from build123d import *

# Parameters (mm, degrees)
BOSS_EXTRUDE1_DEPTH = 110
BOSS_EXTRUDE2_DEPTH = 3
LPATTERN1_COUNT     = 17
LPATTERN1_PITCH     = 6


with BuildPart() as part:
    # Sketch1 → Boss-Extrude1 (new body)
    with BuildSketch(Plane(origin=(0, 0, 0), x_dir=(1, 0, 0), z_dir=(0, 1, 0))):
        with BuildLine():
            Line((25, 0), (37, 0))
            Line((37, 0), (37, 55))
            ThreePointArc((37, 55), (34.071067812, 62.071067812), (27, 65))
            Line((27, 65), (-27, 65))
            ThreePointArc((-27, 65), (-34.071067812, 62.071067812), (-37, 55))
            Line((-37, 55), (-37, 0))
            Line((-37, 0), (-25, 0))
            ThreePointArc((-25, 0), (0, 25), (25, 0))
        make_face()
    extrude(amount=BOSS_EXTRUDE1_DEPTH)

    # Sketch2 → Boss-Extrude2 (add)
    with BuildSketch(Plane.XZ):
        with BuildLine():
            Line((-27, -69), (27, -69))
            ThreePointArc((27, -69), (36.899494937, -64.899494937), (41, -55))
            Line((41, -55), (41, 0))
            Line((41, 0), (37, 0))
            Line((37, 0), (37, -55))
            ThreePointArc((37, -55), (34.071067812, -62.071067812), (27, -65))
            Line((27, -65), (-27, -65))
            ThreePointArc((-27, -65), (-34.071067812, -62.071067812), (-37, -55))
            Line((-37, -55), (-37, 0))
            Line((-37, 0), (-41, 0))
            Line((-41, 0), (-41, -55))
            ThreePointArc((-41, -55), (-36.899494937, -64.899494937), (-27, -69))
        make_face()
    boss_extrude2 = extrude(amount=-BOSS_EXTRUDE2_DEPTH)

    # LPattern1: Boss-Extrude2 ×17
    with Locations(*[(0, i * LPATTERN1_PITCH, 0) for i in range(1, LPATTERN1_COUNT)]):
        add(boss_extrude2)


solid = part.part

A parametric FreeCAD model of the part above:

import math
import FreeCAD as App
import Part
import Sketcher
from FreeCAD import Vector
Q = App.Units.Quantity

doc = App.newDocument("Part")
body = doc.addObject("PartDesign::Body", "Body")

# Sketch on XZ plane
sketch1 = body.newObject("Sketcher::SketchObject", "Sketch")
sketch1.AttachmentSupport = (doc.getObject("XZ_Plane"), [""])
sketch1.MapMode = "FlatFace"
sketch1.addGeometry([
    Part.LineSegment(Vector(25, 0, 0), Vector(37, 0, 0)),  # 0
    Part.LineSegment(Vector(37, 0, 0), Vector(37, -55, 0)),  # 1
    Part.ArcOfCircle(Part.Circle(Vector(27, -55, 0), Vector(0, 0, 1), 10), math.radians(-90), math.radians(0)),  # 2
    Part.LineSegment(Vector(27, -65, 0), Vector(-27, -65, 0)),  # 3
    Part.ArcOfCircle(Part.Circle(Vector(-27, -55, 0), Vector(0, 0, 1), 10), math.radians(180), math.radians(270)),  # 4
    Part.LineSegment(Vector(-37, -55, 0), Vector(-37, 0, 0)),  # 5
    Part.LineSegment(Vector(-37, 0, 0), Vector(-25, 0, 0)),  # 6
    Part.ArcOfCircle(Part.Circle(Vector(0, 0, 0), Vector(0, 0, 1), 25), math.radians(180), math.radians(360)),  # 7
], False)
sketch1.addConstraint([
    Sketcher.Constraint("Coincident", 0, 2, 1, 1),
    Sketcher.Constraint("Tangent", 1, 2, 2, 2),
    Sketcher.Constraint("Tangent", 2, 1, 3, 1),
    Sketcher.Constraint("Tangent", 3, 2, 4, 2),
    Sketcher.Constraint("Tangent", 4, 1, 5, 1),
    Sketcher.Constraint("Coincident", 5, 2, 6, 1),
    Sketcher.Constraint("Coincident", 6, 2, 7, 1),
    Sketcher.Constraint("Coincident", 7, 2, 0, 1),
    Sketcher.Constraint("Horizontal", 0),
    Sketcher.Constraint("Vertical", 1),
    Sketcher.Constraint("Horizontal", 3),
    Sketcher.Constraint("Vertical", 5),
    Sketcher.Constraint("Horizontal", 6),
    Sketcher.Constraint("Coincident", 7, 3, -1, 1),
    Sketcher.Constraint("Equal", 2, 4),
    Sketcher.Constraint("Symmetric", 0, 2, 5, 2, -1, 1),
    Sketcher.Constraint("PointOnObject", 0, 2, -1),
    Sketcher.Constraint("Radius", 2, Q("10 mm")),
    Sketcher.Constraint("Radius", 7, Q("25 mm")),
    Sketcher.Constraint("DistanceX", 0, 1, 0, 2, Q("12 mm")),
    Sketcher.Constraint("DistanceY", 1, 2, 1, 1, Q("55 mm")),
])
pad1 = body.newObject("PartDesign::Pad", "Pad")
pad1.Profile = sketch1
pad1.Length = 110
pad1.Reversed = True

# Sketch on XZ plane
sketch2 = body.newObject("Sketcher::SketchObject", "Sketch001")
sketch2.AttachmentSupport = (doc.getObject("XZ_Plane"), [""])
sketch2.MapMode = "FlatFace"
sketch2.addGeometry([
    Part.LineSegment(Vector(-27, -69, 0), Vector(27, -69, 0)),  # 0
    Part.ArcOfCircle(Part.Circle(Vector(27, -55, 0), Vector(0, 0, 1), 14), math.radians(-90), math.radians(0)),  # 1
    Part.LineSegment(Vector(41, -55, 0), Vector(41, 0, 0)),  # 2
    Part.LineSegment(Vector(41, 0, 0), Vector(37, 0, 0)),  # 3
    Part.LineSegment(Vector(37, 0, 0), Vector(37, -55, 0)),  # 4
    Part.ArcOfCircle(Part.Circle(Vector(27, -55, 0), Vector(0, 0, 1), 10), math.radians(-90), math.radians(0)),  # 5
    Part.LineSegment(Vector(27, -65, 0), Vector(-27, -65, 0)),  # 6
    Part.ArcOfCircle(Part.Circle(Vector(-27, -55, 0), Vector(0, 0, 1), 10), math.radians(180), math.radians(270)),  # 7
    Part.LineSegment(Vector(-37, -55, 0), Vector(-37, 0, 0)),  # 8
    Part.LineSegment(Vector(-37, 0, 0), Vector(-41, 0, 0)),  # 9
    Part.LineSegment(Vector(-41, 0, 0), Vector(-41, -55, 0)),  # 10
    Part.ArcOfCircle(Part.Circle(Vector(-27, -55, 0), Vector(0, 0, 1), 14), math.radians(180), math.radians(270)),  # 11
], False)
sketch2.addConstraint([
    Sketcher.Constraint("Tangent", 0, 2, 1, 1),
    Sketcher.Constraint("Tangent", 1, 2, 2, 1),
    Sketcher.Constraint("Coincident", 2, 2, 3, 1),
    Sketcher.Constraint("Coincident", 3, 2, 4, 1),
    Sketcher.Constraint("Tangent", 4, 2, 5, 2),
    Sketcher.Constraint("Tangent", 5, 1, 6, 1),
    Sketcher.Constraint("Tangent", 6, 2, 7, 2),
    Sketcher.Constraint("Tangent", 7, 1, 8, 1),
    Sketcher.Constraint("Coincident", 8, 2, 9, 1),
    Sketcher.Constraint("Coincident", 9, 2, 10, 1),
    Sketcher.Constraint("Tangent", 10, 2, 11, 1),
    Sketcher.Constraint("Tangent", 11, 2, 0, 1),
    Sketcher.Constraint("Horizontal", 0),
    Sketcher.Constraint("Vertical", 2),
    Sketcher.Constraint("Horizontal", 3),
    Sketcher.Constraint("Vertical", 4),
    Sketcher.Constraint("Horizontal", 6),
    Sketcher.Constraint("Vertical", 8),
    Sketcher.Constraint("Horizontal", 9),
    Sketcher.Constraint("Vertical", 10),
    Sketcher.Constraint("Coincident", 5, 3, 1, 3),
    Sketcher.Constraint("Coincident", 11, 3, 7, 3),
    Sketcher.Constraint("Equal", 5, 7),
    Sketcher.Constraint("Symmetric", 3, 2, 8, 2, -1, 1),
    Sketcher.Constraint("PointOnObject", 2, 2, -1),
    Sketcher.Constraint("Radius", 1, Q("14 mm")),
    Sketcher.Constraint("Radius", 5, Q("10 mm")),
    Sketcher.Constraint("DistanceX", 0, 1, 0, 2, Q("54 mm")),
    Sketcher.Constraint("DistanceY", 2, 1, 2, 2, Q("55 mm")),
])
pad2 = body.newObject("PartDesign::Pad", "Pad001")
pad2.Profile = sketch2
pad2.Length = 3
pad2.Reversed = True
doc.recompute()

linearpattern = body.newObject("PartDesign::LinearPattern", "LinearPattern")
linearpattern.Originals = [pad2]
linearpattern.Direction = (doc.getObject("Y_Axis"), [""])
linearpattern.Mode = "offset"
linearpattern.Offset = 6
linearpattern.Occurrences = 17
body.Tip = linearpattern

doc.recompute()
